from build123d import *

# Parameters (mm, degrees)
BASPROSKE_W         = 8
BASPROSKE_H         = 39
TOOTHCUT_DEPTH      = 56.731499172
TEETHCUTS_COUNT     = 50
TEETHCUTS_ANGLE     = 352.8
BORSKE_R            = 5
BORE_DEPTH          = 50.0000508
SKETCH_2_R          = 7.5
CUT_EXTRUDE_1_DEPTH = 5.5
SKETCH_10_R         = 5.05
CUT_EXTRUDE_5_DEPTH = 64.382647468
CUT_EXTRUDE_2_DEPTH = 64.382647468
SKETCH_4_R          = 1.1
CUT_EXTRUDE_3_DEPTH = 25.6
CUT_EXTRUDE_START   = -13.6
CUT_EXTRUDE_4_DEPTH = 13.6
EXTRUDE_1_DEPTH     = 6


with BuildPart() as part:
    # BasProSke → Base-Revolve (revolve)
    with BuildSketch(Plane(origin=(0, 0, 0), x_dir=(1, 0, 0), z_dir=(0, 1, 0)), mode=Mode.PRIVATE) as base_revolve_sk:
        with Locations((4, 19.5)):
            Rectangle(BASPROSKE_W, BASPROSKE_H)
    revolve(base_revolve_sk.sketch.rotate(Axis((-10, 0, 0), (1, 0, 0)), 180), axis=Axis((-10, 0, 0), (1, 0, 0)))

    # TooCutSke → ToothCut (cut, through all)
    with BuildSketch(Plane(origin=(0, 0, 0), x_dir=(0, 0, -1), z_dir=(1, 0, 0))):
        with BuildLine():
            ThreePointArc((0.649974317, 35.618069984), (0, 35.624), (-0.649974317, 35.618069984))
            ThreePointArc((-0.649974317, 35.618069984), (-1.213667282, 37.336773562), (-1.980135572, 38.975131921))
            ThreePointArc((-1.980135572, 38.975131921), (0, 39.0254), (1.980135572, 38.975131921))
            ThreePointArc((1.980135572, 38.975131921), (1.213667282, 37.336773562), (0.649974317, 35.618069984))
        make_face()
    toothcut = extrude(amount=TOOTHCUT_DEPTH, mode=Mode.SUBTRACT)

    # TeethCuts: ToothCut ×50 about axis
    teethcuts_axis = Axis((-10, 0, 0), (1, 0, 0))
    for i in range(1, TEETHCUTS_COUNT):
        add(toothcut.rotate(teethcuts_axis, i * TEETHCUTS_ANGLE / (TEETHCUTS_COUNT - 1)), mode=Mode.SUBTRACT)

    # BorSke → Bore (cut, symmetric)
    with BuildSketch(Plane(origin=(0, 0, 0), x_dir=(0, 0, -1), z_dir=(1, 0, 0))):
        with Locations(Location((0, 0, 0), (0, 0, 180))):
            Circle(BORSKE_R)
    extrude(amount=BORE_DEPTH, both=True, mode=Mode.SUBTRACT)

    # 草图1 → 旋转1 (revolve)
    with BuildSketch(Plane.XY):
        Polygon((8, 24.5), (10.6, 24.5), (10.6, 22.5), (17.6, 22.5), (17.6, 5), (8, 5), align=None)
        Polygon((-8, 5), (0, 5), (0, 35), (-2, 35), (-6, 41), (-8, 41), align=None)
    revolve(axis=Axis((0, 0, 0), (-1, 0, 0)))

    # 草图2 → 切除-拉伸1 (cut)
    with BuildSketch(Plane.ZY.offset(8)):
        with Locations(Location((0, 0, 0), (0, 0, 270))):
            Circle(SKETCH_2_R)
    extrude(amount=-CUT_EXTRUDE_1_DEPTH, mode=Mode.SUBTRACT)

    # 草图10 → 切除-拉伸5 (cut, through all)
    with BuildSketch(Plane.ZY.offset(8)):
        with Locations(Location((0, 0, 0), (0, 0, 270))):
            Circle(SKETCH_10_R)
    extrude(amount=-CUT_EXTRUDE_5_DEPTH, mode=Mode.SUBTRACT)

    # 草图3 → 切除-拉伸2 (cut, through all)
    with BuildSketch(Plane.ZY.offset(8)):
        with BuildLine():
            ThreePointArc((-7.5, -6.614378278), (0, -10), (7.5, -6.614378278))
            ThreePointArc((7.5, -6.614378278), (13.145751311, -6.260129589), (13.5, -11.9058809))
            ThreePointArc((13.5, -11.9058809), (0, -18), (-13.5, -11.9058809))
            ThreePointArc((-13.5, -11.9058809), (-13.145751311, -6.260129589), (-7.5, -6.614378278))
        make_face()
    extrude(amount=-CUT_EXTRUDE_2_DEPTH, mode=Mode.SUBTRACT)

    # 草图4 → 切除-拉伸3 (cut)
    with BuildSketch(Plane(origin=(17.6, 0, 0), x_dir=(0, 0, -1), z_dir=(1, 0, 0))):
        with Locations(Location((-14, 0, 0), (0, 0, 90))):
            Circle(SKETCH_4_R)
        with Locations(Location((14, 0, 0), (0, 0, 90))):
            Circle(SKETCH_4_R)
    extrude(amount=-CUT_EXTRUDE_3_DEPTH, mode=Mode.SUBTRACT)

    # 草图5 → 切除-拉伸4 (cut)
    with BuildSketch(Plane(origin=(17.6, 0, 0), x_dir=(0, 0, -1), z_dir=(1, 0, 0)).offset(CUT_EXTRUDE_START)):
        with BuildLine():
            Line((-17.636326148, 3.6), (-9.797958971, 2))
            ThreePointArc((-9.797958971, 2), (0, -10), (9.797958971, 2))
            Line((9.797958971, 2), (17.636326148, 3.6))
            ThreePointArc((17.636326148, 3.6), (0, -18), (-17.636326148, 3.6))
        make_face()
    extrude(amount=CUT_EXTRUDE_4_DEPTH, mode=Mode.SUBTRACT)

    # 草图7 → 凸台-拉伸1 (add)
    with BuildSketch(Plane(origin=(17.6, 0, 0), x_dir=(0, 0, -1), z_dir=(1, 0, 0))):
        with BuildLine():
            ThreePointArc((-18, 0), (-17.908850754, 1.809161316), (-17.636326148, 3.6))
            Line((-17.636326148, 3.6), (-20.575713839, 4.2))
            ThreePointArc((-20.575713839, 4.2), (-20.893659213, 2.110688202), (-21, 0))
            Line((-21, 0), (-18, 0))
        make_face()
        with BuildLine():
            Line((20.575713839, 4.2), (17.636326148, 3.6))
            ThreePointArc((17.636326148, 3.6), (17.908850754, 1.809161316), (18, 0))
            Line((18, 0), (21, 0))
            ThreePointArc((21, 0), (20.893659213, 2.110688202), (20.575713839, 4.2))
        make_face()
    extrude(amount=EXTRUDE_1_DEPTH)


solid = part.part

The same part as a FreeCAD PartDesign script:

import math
import FreeCAD as App
import Part
import Sketcher
from FreeCAD import Vector
Q = App.Units.Quantity

doc = App.newDocument("Part")
body = doc.addObject("PartDesign::Body", "Body")

# Sketch on XZ plane
sketch1 = body.newObject("Sketcher::SketchObject", "Sketch")
sketch1.AttachmentSupport = (doc.getObject("XZ_Plane"), [""])
sketch1.MapMode = "FlatFace"
sketch1.addGeometry([
    Part.LineSegment(Vector(0, -39, 0), Vector(0, 0, 0)),
    Part.LineSegment(Vector(0, 0, 0), Vector(8, 0, 0)),
    Part.LineSegment(Vector(8, 0, 0), Vector(8, -39, 0)),
    Part.LineSegment(Vector(8, -39, 0), Vector(0, -39, 0)),
], False)
sketch1.addConstraint([
    Sketcher.Constraint("Coincident", 0, 2, 1, 1),
    Sketcher.Constraint("Coincident", 1, 2, 2, 1),
    Sketcher.Constraint("Coincident", 2, 2, 3, 1),
    Sketcher.Constraint("Coincident", 3, 2, 0, 1),
    Sketcher.Constraint("Vertical", 0),
    Sketcher.Constraint("Horizontal", 1),
    Sketcher.Constraint("Vertical", 2),
    Sketcher.Constraint("Horizontal", 3),
    Sketcher.Constraint("Coincident", 0, 2, -1, 1),
    Sketcher.Constraint("DistanceX", 1, 1, 1, 2, Q("8 mm")),
    Sketcher.Constraint("DistanceY", 0, 1, 0, 2, Q("39 mm")),
])
revolution = body.newObject("PartDesign::Revolution", "Revolution")
revolution.Profile = sketch1
revolution.ReferenceAxis = (sketch1, ["H_Axis"])
revolution.Angle = 360

# Sketch on YZ plane
sketch2 = body.newObject("Sketcher::SketchObject", "Sketch001")
sketch2.AttachmentSupport = (doc.getObject("YZ_Plane"), [""])
sketch2.MapMode = "FlatFace"
sketch2.addGeometry([
    Part.ArcOfCircle(Part.Circle(Vector(0, 0, 0), Vector(0, 0, 1), 35.624), math.radians(-1.045443), math.radians(1.045443)),
    Part.ArcOfCircle(Part.Circle(Vector(31.811291, -15.158883, 0), Vector(0, 0, 1), 15), math.radians(61.471922), math.radians(75.298383)),
    Part.ArcOfCircle(Part.Circle(Vector(0, 0, 0), Vector(0, 0, 1), 39.0254), math.radians(-2.908417), math.radians(2.908417)),
    Part.ArcOfCircle(Part.Circle(Vector(31.811291, 15.158883, 0), Vector(0, 0, 1), 15), math.radians(-75.298383), math.radians(-61.471922)),
], False)
sketch2.addConstraint([
    Sketcher.Constraint("Coincident", 0, 1, 1, 2),
    Sketcher.Constraint("Coincident", 1, 1, 2, 1),
    Sketcher.Constraint("Coincident", 2, 2, 3, 2),
    Sketcher.Constraint("Coincident", 3, 1, 0, 2),
    Sketcher.Constraint("Coincident", 0, 3, -1, 1),
    Sketcher.Constraint("Coincident", 2, 3, -1, 1),
    Sketcher.Constraint("Equal", 1, 3),
    Sketcher.Constraint("Symmetric", 1, 3, 3, 3, -1),
    Sketcher.Constraint("Radius", 1, Q("15 mm")),
    Sketcher.Constraint("Radius", 0, Q("35.624 mm")),
    Sketcher.Constraint("Radius", 2, Q("39.0254 mm")),
    Sketcher.Constraint("DistanceX", -1, 1, 1, 3, Q("31.811291 mm")),
    Sketcher.Constraint("DistanceX", -1, 1, 0, 1, Q("35.61807 mm")),
])
pocket1 = body.newObject("PartDesign::Pocket", "Pocket")
pocket1.Profile = sketch2
pocket1.Type = "ThroughAll"
pocket1.Reversed = True
doc.recompute()

polarpattern = body.newObject("PartDesign::PolarPattern", "PolarPattern")
polarpattern.Originals = [pocket1]
polarpattern.Axis = (doc.getObject("X_Axis"), [""])
polarpattern.Angle = 360
polarpattern.Occurrences = 50
body.Tip = polarpattern

# Sketch on YZ plane
sketch3 = body.newObject("Sketcher::SketchObject", "Sketch002")
sketch3.AttachmentSupport = (doc.getObject("YZ_Plane"), [""])
sketch3.MapMode = "FlatFace"
sketch3.addGeometry(Part.Circle(Vector(0, 0, 0), Vector(0, 0, 1), 5), False)
sketch3.addConstraint([
    Sketcher.Constraint("Coincident", 0, 3, -1, 1),
    Sketcher.Constraint("Diameter", 0, Q("10 mm")),
])
pocket2 = body.newObject("PartDesign::Pocket", "Pocket001")
pocket2.Profile = sketch3
pocket2.Length = 100.000102
pocket2.Midplane = True

# Sketch on XY plane
sketch4 = body.newObject("Sketcher::SketchObject", "Sketch003")
sketch4.AttachmentSupport = (doc.getObject("XY_Plane"), [""])
sketch4.MapMode = "FlatFace"
sketch4.addGeometry([
    Part.LineSegment(Vector(10.6, 24.5, 0), Vector(8, 24.5, 0)),  # 0
    Part.LineSegment(Vector(8, 24.5, 0), Vector(8, 5, 0)),  # 1
    Part.LineSegment(Vector(8, 5, 0), Vector(17.6, 5, 0)),  # 2
    Part.LineSegment(Vector(17.6, 5, 0), Vector(17.6, 22.5, 0)),  # 3
    Part.LineSegment(Vector(17.6, 22.5, 0), Vector(10.6, 22.5, 0)),  # 4
    Part.LineSegment(Vector(10.6, 22.5, 0), Vector(10.6, 24.5, 0)),  # 5
    Part.LineSegment(Vector(-8, 5, 0), Vector(0, 5, 0)),  # 6
    Part.LineSegment(Vector(0, 5, 0), Vector(0, 35, 0)),  # 7
    Part.LineSegment(Vector(0, 35, 0), Vector(-2, 35, 0)),  # 8
    Part.LineSegment(Vector(-2, 35, 0), Vector(-6, 41, 0)),  # 9
    Part.LineSegment(Vector(-6, 41, 0), Vector(-8, 41, 0)),  # 10
    Part.LineSegment(Vector(-8, 41, 0), Vector(-8, 5, 0)),  # 11
], False)
sketch4.addConstraint([
    Sketcher.Constraint("Coincident", 0, 2, 1, 1),
    Sketcher.Constraint("Coincident", 1, 2, 2, 1),
    Sketcher.Constraint("Coincident", 2, 2, 3, 1),
    Sketcher.Constraint("Coincident", 3, 2, 4, 1),
    Sketcher.Constraint("Coincident", 4, 2, 5, 1),
    Sketcher.Constraint("Coincident", 5, 2, 0, 1),
    Sketcher.Constraint("Coincident", 6, 2, 7, 1),
    Sketcher.Constraint("Coincident", 7, 2, 8, 1),
    Sketcher.Constraint("Coincident", 8, 2, 9, 1),
    Sketcher.Constraint("Coincident", 9, 2, 10, 1),
    Sketcher.Constraint("Coincident", 10, 2, 11, 1),
    Sketcher.Constraint("Coincident", 11, 2, 6, 1),
    Sketcher.Constraint("Horizontal", 0),
    Sketcher.Constraint("Vertical", 1),
    Sketcher.Constraint("Horizontal", 2),
    Sketcher.Constraint("Vertical", 3),
    Sketcher.Constraint("Horizontal", 4),
    Sketcher.Constraint("Vertical", 5),
    Sketcher.Constraint("Horizontal", 6),
    Sketcher.Constraint("Vertical", 7),
    Sketcher.Constraint("Horizontal", 8),
    Sketcher.Constraint("Horizontal", 10),
    Sketcher.Constraint("Vertical", 11),
    Sketcher.Constraint("Symmetric", 1, 2, 11, 2, -2),
    Sketcher.Constraint("PointOnObject", 6, 2, -2),
    Sketcher.Constraint("Equal", 8, 10),
    Sketcher.Constraint("Equal", 10, 5),
    Sketcher.Constraint("DistanceX", 4, 2, 4, 1, Q("7 mm")),
    Sketcher.Constraint("DistanceX", 6, 1, 6, 2, Q("8 mm")),
    Sketcher.Constraint("DistanceX", 8, 2, 8, 1, Q("2 mm")),
    Sketcher.Constraint("DistanceY", 7, 1, 7, 2, Q("30 mm")),
    Sketcher.Constraint("DistanceY", 11, 2, 11, 1, Q("36 mm")),
    Sketcher.Constraint("DistanceX", 0, 2, 0, 1, Q("2.6 mm")),
    Sketcher.Constraint("DistanceY", 1, 2, 1, 1, Q("19.5 mm")),
    Sketcher.Constraint("DistanceY", -1, 1, 1, 2, Q("5 mm")),
])
revolution2 = body.newObject("PartDesign::Revolution", "Revolution001")
revolution2.Profile = sketch4
revolution2.ReferenceAxis = (sketch4, ["H_Axis"])
revolution2.Angle = 360

# Sketch on YZ plane
sketch5 = body.newObject("Sketcher::SketchObject", "Sketch004")
sketch5.AttachmentSupport = (doc.getObject("YZ_Plane"), [""])
sketch5.MapMode = "FlatFace"
sketch5.AttachmentOffset = App.Placement(Vector(0, 0, -8), App.Rotation())
sketch5.addGeometry(Part.Circle(Vector(0, 0, 0), Vector(0, 0, 1), 7.5), False)
sketch5.addConstraint([
    Sketcher.Constraint("Coincident", 0, 3, -1, 1),
    Sketcher.Constraint("Diameter", 0, Q("15 mm")),
])
pocket3 = body.newObject("PartDesign::Pocket", "Pocket002")
pocket3.Profile = sketch5
pocket3.Length = 5.5
pocket3.Reversed = True

# Sketch on YZ plane
sketch6 = body.newObject("Sketcher::SketchObject", "Sketch005")
sketch6.AttachmentSupport = (doc.getObject("YZ_Plane"), [""])
sketch6.MapMode = "FlatFace"
sketch6.AttachmentOffset = App.Placement(Vector(0, 0, -8), App.Rotation())
sketch6.addGeometry(Part.Circle(Vector(0, 0, 0), Vector(0, 0, 1), 5.05), False)
sketch6.addConstraint([
    Sketcher.Constraint("Coincident", 0, 3, -1, 1),
    Sketcher.Constraint("Diameter", 0, Q("10.1 mm")),
])
pocket4 = body.newObject("PartDesign::Pocket", "Pocket003")
pocket4.Profile = sketch6
pocket4.Type = "ThroughAll"
pocket4.Reversed = True

# Sketch on YZ plane
sketch7 = body.newObject("Sketcher::SketchObject", "Sketch006")
sketch7.AttachmentSupport = (doc.getObject("YZ_Plane"), [""])
sketch7.MapMode = "FlatFace"
sketch7.AttachmentOffset = App.Placement(Vector(0, 0, -8), App.Rotation())
sketch7.addGeometry([
    Part.ArcOfCircle(Part.Circle(Vector(0, 0, 0), Vector(0, 0, 1), 10), math.radians(131.409622), math.radians(228.590378)),
    Part.ArcOfCircle(Part.Circle(Vector(-9.26013, -10.5, 0), Vector(0, 0, 1), 4), math.radians(-131.409622), math.radians(48.590378)),
    Part.ArcOfCircle(Part.Circle(Vector(0, 0, 0), Vector(0, 0, 1), 18), math.radians(131.409622), math.radians(228.590378)),
    Part.ArcOfCircle(Part.Circle(Vector(-9.26013, 10.5, 0), Vector(0, 0, 1), 4), math.radians(-48.590378), math.radians(131.409622)),
], False)
sketch7.addConstraint([
    Sketcher.Constraint("Tangent", 0, 2, 1, 2),
    Sketcher.Constraint("Tangent", 1, 1, 2, 2),
    Sketcher.Constraint("Tangent", 2, 1, 3, 2),
    Sketcher.Constraint("Tangent", 3, 1, 0, 1),
    Sketcher.Constraint("Coincident", 0, 3, -1, 1),
    Sketcher.Constraint("Coincident", 2, 3, -1, 1),
    Sketcher.Constraint("Vertical", 1, 3, 3, 3),
    Sketcher.Constraint("Radius", 0, Q("10 mm")),
    Sketcher.Constraint("Radius", 1, Q("4 mm")),
    Sketcher.Constraint("DistanceY", 1, 3, 3, 3, Q("21 mm")),
])
pocket5 = body.newObject("PartDesign::Pocket", "Pocket004")
pocket5.Profile = sketch7
pocket5.Type = "ThroughAll"
pocket5.Reversed = True

# Sketch on YZ plane
sketch8 = body.newObject("Sketcher::SketchObject", "Sketch007")
sketch8.AttachmentSupport = (doc.getObject("YZ_Plane"), [""])
sketch8.MapMode = "FlatFace"
sketch8.AttachmentOffset = App.Placement(Vector(0, 0, 17.6), App.Rotation())
sketch8.addGeometry([
    Part.Circle(Vector(0, 14, 0), Vector(0, 0, 1), 1.1),
    Part.Circle(Vector(0, -14, 0), Vector(0, 0, 1), 1.1),
], False)
sketch8.addConstraint([
    Sketcher.Constraint("Equal", 0, 1),
    Sketcher.Constraint("Symmetric", 0, 3, 1, 3, -1, 1),
    Sketcher.Constraint("PointOnObject", 0, 3, -2),
    Sketcher.Constraint("Diameter", 0, Q("2.2 mm")),
    Sketcher.Constraint("DistanceY", -1, 1, 0, 3, Q("14 mm")),
])
pocket6 = body.newObject("PartDesign::Pocket", "Pocket005")
pocket6.Profile = sketch8
pocket6.Length = 25.6

# Sketch on YZ plane
sketch9 = body.newObject("Sketcher::SketchObject", "Sketch008")
sketch9.AttachmentSupport = (doc.getObject("YZ_Plane"), [""])
sketch9.MapMode = "FlatFace"
sketch9.AttachmentOffset = App.Placement(Vector(0, 0, 4), App.Rotation())
sketch9.addGeometry([
    Part.LineSegment(Vector(2, 9.797959, 0), Vector(3.6, 17.636326, 0)),
    Part.ArcOfCircle(Part.Circle(Vector(0, 0, 0), Vector(0, 0, 1), 18), math.radians(78.463041), math.radians(281.536959)),
    Part.LineSegment(Vector(3.6, -17.636326, 0), Vector(2, -9.797959, 0)),
    Part.ArcOfCircle(Part.Circle(Vector(0, 0, 0), Vector(0, 0, 1), 10), math.radians(78.463041), math.radians(281.536959)),
], False)
sketch9.addConstraint([
    Sketcher.Constraint("Coincident", 0, 2, 1, 1),
    Sketcher.Constraint("Coincident", 1, 2, 2, 1),
    Sketcher.Constraint("Coincident", 2, 2, 3, 2),
    Sketcher.Constraint("Coincident", 3, 1, 0, 1),
    Sketcher.Constraint("Coincident", 1, 3, -1, 1),
    Sketcher.Constraint("Coincident", 3, 3, -1, 1),
    Sketcher.Constraint("Vertical", 0, 2, 1, 2),
    Sketcher.Constraint("Vertical", 2, 2, 3, 1),
    Sketcher.Constraint("Radius", 1, Q("18 mm")),
    Sketcher.Constraint("Radius", 3, Q("10 mm")),
    Sketcher.Constraint("DistanceX", -1, 1, 2, 2, Q("2 mm")),
    Sketcher.Constraint("DistanceX", -1, 1, 0, 2, Q("3.6 mm")),
])
pocket7 = body.newObject("PartDesign::Pocket", "Pocket006")
pocket7.Profile = sketch9
pocket7.Length = 13.6
pocket7.Reversed = True

# Sketch on YZ plane
sketch10 = body.newObject("Sketcher::SketchObject", "Sketch009")
sketch10.AttachmentSupport = (doc.getObject("YZ_Plane"), [""])
sketch10.MapMode = "FlatFace"
sketch10.AttachmentOffset = App.Placement(Vector(0, 0, 17.6), App.Rotation())
sketch10.addGeometry([
    Part.ArcOfCircle(Part.Circle(Vector(0, 0, 0), Vector(0, 0, 1), 18), math.radians(78.463041), math.radians(90)),  # 0
    Part.LineSegment(Vector(3.6, 17.636326, 0), Vector(4.2, 20.575714, 0)),  # 1
    Part.ArcOfCircle(Part.Circle(Vector(0, 0, 0), Vector(0, 0, 1), 21), math.radians(78.463041), math.radians(90)),  # 2
    Part.LineSegment(Vector(0, 21, 0), Vector(0, 18, 0)),  # 3
    Part.LineSegment(Vector(4.2, -20.575714, 0), Vector(3.6, -17.636326, 0)),  # 4
    Part.ArcOfCircle(Part.Circle(Vector(0, 0, 0), Vector(0, 0, 1), 18), math.radians(-90), math.radians(-78.463041)),  # 5
    Part.LineSegment(Vector(0, -18, 0), Vector(0, -21, 0)),  # 6
    Part.ArcOfCircle(Part.Circle(Vector(0, 0, 0), Vector(0, 0, 1), 21), math.radians(-90), math.radians(-78.463041)),  # 7
], False)
sketch10.addConstraint([
    Sketcher.Constraint("Coincident", 0, 1, 1, 1),
    Sketcher.Constraint("Coincident", 1, 2, 2, 1),
    Sketcher.Constraint("Coincident", 2, 2, 3, 1),
    Sketcher.Constraint("Coincident", 3, 2, 0, 2),
    Sketcher.Constraint("Coincident", 4, 2, 5, 2),
    Sketcher.Constraint("Coincident", 5, 1, 6, 1),
    Sketcher.Constraint("Coincident", 6, 2, 7, 1),
    Sketcher.Constraint("Coincident", 7, 2, 4, 1),
    Sketcher.Constraint("Vertical", 3),
    Sketcher.Constraint("Vertical", 6),
    Sketcher.Constraint("Coincident", 0, 3, -1, 1),
    Sketcher.Constraint("Coincident", 2, 3, -1, 1),
    Sketcher.Constraint("Coincident", 5, 3, -1, 1),
    Sketcher.Constraint("Coincident", 7, 3, -1, 1),
    Sketcher.Constraint("Equal", 0, 5),
    Sketcher.Constraint("Equal", 2, 7),
    Sketcher.Constraint("PointOnObject", 2, 2, -2),
    Sketcher.Constraint("PointOnObject", 5, 1, -2),
    Sketcher.Constraint("Vertical", 0, 1, 4, 2),
    Sketcher.Constraint("Vertical", 1, 2, 7, 2),
    Sketcher.Constraint("Radius", 0, Q("18 mm")),
    Sketcher.Constraint("Radius", 2, Q("21 mm")),
    Sketcher.Constraint("DistanceX", -1, 1, 0, 1, Q("3.6 mm")),
    Sketcher.Constraint("DistanceX", -1, 1, 1, 2, Q("4.2 mm")),
])
pad1 = body.newObject("PartDesign::Pad", "Pad")
pad1.Profile = sketch10
pad1.Length = 6

doc.recompute()
